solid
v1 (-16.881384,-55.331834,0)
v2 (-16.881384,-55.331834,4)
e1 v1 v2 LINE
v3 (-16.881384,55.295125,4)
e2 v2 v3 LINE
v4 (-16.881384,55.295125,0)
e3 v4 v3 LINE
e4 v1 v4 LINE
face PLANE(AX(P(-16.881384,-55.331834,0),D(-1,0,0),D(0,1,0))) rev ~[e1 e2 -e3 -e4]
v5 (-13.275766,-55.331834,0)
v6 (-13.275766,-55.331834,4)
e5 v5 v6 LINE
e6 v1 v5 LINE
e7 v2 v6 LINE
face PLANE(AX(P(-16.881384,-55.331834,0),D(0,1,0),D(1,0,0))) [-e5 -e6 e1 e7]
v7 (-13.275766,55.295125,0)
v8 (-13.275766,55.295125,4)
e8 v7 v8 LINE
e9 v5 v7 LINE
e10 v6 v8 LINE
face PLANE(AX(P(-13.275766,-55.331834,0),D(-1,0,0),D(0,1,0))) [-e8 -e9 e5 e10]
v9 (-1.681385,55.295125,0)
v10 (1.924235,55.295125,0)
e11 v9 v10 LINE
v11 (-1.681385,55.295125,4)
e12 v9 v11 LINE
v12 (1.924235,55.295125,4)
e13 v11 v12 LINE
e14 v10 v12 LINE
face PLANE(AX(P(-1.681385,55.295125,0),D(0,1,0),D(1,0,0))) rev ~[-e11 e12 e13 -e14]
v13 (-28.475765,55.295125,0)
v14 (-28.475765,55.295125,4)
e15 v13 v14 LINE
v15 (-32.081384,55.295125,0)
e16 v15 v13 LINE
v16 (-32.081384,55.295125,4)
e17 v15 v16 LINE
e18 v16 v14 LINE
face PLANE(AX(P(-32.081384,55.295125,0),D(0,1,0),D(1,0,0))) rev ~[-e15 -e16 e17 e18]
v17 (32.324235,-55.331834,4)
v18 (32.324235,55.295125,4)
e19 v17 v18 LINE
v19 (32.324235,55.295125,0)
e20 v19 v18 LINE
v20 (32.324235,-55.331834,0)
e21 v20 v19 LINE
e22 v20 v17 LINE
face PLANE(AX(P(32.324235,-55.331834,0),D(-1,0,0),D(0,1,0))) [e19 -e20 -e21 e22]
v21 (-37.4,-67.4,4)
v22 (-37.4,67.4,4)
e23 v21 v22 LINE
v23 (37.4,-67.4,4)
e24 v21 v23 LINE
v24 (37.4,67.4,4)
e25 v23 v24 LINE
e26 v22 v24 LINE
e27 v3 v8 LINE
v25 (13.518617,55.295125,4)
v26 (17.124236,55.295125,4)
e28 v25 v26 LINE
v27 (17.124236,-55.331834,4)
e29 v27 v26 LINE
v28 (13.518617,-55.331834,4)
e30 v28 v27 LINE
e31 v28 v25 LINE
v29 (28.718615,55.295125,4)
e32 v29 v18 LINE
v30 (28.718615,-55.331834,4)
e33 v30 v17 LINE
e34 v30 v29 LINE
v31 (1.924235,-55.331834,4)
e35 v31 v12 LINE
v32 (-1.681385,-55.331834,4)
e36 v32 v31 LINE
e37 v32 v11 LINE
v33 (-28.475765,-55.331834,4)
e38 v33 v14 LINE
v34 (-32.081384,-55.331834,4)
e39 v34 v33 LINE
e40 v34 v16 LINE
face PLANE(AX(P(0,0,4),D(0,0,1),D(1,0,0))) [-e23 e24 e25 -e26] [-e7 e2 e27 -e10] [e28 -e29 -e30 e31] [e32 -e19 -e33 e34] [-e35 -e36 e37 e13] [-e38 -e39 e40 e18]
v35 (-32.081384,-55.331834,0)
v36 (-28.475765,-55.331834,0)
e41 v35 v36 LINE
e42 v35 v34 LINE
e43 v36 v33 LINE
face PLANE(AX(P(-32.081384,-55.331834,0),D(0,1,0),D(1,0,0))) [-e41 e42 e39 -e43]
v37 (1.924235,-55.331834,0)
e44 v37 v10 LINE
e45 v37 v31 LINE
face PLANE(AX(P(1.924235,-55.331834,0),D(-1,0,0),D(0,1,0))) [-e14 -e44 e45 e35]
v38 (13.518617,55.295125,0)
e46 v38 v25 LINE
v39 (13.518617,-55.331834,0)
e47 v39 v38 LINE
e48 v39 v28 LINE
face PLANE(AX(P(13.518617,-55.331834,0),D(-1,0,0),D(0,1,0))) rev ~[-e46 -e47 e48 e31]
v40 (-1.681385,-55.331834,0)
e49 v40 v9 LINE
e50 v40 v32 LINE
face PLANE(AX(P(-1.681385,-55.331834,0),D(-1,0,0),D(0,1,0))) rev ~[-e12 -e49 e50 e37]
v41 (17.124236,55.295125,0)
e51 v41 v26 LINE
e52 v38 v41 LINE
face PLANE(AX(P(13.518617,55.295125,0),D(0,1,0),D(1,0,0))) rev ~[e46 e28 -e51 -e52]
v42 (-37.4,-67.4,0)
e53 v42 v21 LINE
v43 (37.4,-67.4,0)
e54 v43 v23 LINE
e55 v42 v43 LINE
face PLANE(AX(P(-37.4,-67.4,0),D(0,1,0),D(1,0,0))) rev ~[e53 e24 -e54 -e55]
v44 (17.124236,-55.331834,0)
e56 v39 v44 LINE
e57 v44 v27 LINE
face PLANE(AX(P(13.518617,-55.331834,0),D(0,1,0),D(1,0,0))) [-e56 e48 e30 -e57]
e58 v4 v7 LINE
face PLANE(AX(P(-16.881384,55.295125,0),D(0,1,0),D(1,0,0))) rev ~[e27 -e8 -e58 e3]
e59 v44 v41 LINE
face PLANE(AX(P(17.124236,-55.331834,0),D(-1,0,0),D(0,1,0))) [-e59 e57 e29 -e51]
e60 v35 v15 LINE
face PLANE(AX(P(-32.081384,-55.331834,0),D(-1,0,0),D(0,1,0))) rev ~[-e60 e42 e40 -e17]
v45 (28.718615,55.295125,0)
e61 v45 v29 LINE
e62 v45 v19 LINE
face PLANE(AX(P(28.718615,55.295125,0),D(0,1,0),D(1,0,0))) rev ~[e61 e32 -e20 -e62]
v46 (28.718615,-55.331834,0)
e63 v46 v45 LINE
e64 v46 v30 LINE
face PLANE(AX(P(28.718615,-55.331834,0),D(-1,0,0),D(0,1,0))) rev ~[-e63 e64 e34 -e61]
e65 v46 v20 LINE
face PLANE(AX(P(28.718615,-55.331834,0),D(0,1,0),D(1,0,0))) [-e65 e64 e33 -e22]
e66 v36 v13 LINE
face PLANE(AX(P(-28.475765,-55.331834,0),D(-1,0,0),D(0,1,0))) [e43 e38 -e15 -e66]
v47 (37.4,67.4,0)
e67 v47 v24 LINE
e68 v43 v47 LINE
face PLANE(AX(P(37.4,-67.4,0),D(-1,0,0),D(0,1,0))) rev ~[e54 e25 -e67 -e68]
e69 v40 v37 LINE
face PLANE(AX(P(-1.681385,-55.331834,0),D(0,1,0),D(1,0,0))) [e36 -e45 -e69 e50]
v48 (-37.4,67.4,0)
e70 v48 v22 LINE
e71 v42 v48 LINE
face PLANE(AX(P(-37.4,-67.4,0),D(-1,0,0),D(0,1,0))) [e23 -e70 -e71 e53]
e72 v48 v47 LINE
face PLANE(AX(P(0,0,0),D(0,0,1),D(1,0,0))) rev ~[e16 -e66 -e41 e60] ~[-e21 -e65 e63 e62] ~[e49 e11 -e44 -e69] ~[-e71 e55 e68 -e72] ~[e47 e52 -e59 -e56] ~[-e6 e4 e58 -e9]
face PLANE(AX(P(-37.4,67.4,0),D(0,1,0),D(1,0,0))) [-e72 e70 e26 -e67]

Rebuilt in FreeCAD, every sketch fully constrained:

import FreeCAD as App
import Part
import Sketcher
from FreeCAD import Vector


def add_polygon(sketch, points):
    """Adds a closed chain of lines whose ends are joined by coincident constraints."""
    first, n = sketch.GeometryCount, len(points)
    for a, b in zip(points, points[1:] + points[:1]):
        sketch.addGeometry(Part.LineSegment(App.Vector(*a, 0), App.Vector(*b, 0)), False)
    for i in range(n):
        sketch.addConstraint(Sketcher.Constraint("Coincident", first + i, 2, first + (i + 1) % n, 1))

doc = App.newDocument("Part")
params = doc.addObject("Spreadsheet::Sheet", "Params")
for row, (alias, value) in enumerate([
    ("sketch1_width", "74.8 mm"),
    ("sketch1_height", "134.8 mm"),
    ("pad1_length", "4 mm"),
], start=1):
    params.set(f"A{row}", alias)
    params.set(f"B{row}", "=" + value)
    params.setAlias(f"B{row}", alias)

body = doc.addObject("PartDesign::Body", "Body")

# Sketch on XY plane
sketch1 = body.newObject("Sketcher::SketchObject", "Sketch")
sketch1.AttachmentSupport = (doc.getObject("XY_Plane"), [""])
sketch1.MapMode = "FlatFace"
add_polygon(sketch1, [(-37.4, 67.4), (-37.4, -67.4), (37.4, -67.4), (37.4, 67.4)])  # lines 0-3
add_polygon(sketch1, [(-28.5, -55.3), (-32.1, -55.3), (-32.1, 55.3), (-28.5, 55.3)])  # lines 4-7
add_polygon(sketch1, [(-13.3, -55.3), (-16.9, -55.3), (-16.9, 55.3), (-13.3, 55.3)])  # lines 8-11
add_polygon(sketch1, [(1.9, -55.3), (-1.7, -55.3), (-1.7, 55.3), (1.9, 55.3)])  # lines 12-15
add_polygon(sketch1, [(17.1, -55.3), (13.5, -55.3), (13.5, 55.3), (17.1, 55.3)])  # lines 16-19
add_polygon(sketch1, [(32.3, -55.3), (28.7, -55.3), (28.7, 55.3), (32.3, 55.3)])  # lines 20-23
sketch1.addConstraint([
    Sketcher.Constraint("Vertical", 0),
    Sketcher.Constraint("Horizontal", 1),
    Sketcher.Constraint("Vertical", 2),
    Sketcher.Constraint("Horizontal", 3),
    Sketcher.Constraint("Horizontal", 4),
    Sketcher.Constraint("Vertical", 5),
    Sketcher.Constraint("Horizontal", 6),
    Sketcher.Constraint("Vertical", 7),
    Sketcher.Constraint("Horizontal", 8),
    Sketcher.Constraint("Vertical", 9),
    Sketcher.Constraint("Horizontal", 10),
    Sketcher.Constraint("Vertical", 11),
    Sketcher.Constraint("Horizontal", 12),
    Sketcher.Constraint("Vertical", 13),
    Sketcher.Constraint("Horizontal", 14),
    Sketcher.Constraint("Vertical", 15),
    Sketcher.Constraint("Horizontal", 16),
    Sketcher.Constraint("Vertical", 17),
    Sketcher.Constraint("Horizontal", 18),
    Sketcher.Constraint("Vertical", 19),
    Sketcher.Constraint("Horizontal", 20),
    Sketcher.Constraint("Vertical", 21),
    Sketcher.Constraint("Horizontal", 22),
    Sketcher.Constraint("Vertical", 23),
    Sketcher.Constraint("Symmetric", 0, 2, 2, 2, -1, 1),
    Sketcher.Constraint("Horizontal", 7, 2, 8, 2),
    Sketcher.Constraint("Horizontal", 6, 2, 9, 2),
    Sketcher.Constraint("Horizontal", 11, 2, 12, 2),
    Sketcher.Constraint("Horizontal", 10, 2, 13, 2),
    Sketcher.Constraint("Horizontal", 15, 2, 16, 2),
    Sketcher.Constraint("Horizontal", 14, 2, 17, 2),
    Sketcher.Constraint("Horizontal", 19, 2, 20, 2),
    Sketcher.Constraint("Horizontal", 18, 2, 21, 2),
    Sketcher.Constraint("Equal", 6, 8),
    Sketcher.Constraint("Equal", 10, 12),
    Sketcher.Constraint("Equal", 14, 16),
    Sketcher.Constraint("Equal", 18, 20),
    Sketcher.Constraint("DistanceX", 1, 1, 1, 2, 74.8),
    Sketcher.Constraint("DistanceY", 0, 2, 0, 1, 134.8),
    Sketcher.Constraint("DistanceX", 4, 2, 8, 2, 15.199999),
    Sketcher.Constraint("DistanceX", 8, 2, 12, 2, 15.2),
    Sketcher.Constraint("DistanceX", 12, 2, 16, 2, 15.200001),
    Sketcher.Constraint("DistanceX", 16, 2, 20, 2, 15.199999),
    Sketcher.Constraint("DistanceX", 4, 2, 4, 1, 3.605619),
    Sketcher.Constraint("DistanceY", 5, 1, 5, 2, 110.626959),
    Sketcher.Constraint("DistanceX", 4, 2, -1, 1, 32.081384),
    Sketcher.Constraint("DistanceY", 4, 2, -1, 1, 55.331834),
])
sketch1.setExpression("Constraints[61]", "Params.sketch1_width")
sketch1.setExpression("Constraints[62]", "Params.sketch1_height")
pad1 = body.newObject("PartDesign::Pad", "Pad")
pad1.Profile = sketch1
pad1.setExpression("Length", "Params.pad1_length")

doc.recompute()
